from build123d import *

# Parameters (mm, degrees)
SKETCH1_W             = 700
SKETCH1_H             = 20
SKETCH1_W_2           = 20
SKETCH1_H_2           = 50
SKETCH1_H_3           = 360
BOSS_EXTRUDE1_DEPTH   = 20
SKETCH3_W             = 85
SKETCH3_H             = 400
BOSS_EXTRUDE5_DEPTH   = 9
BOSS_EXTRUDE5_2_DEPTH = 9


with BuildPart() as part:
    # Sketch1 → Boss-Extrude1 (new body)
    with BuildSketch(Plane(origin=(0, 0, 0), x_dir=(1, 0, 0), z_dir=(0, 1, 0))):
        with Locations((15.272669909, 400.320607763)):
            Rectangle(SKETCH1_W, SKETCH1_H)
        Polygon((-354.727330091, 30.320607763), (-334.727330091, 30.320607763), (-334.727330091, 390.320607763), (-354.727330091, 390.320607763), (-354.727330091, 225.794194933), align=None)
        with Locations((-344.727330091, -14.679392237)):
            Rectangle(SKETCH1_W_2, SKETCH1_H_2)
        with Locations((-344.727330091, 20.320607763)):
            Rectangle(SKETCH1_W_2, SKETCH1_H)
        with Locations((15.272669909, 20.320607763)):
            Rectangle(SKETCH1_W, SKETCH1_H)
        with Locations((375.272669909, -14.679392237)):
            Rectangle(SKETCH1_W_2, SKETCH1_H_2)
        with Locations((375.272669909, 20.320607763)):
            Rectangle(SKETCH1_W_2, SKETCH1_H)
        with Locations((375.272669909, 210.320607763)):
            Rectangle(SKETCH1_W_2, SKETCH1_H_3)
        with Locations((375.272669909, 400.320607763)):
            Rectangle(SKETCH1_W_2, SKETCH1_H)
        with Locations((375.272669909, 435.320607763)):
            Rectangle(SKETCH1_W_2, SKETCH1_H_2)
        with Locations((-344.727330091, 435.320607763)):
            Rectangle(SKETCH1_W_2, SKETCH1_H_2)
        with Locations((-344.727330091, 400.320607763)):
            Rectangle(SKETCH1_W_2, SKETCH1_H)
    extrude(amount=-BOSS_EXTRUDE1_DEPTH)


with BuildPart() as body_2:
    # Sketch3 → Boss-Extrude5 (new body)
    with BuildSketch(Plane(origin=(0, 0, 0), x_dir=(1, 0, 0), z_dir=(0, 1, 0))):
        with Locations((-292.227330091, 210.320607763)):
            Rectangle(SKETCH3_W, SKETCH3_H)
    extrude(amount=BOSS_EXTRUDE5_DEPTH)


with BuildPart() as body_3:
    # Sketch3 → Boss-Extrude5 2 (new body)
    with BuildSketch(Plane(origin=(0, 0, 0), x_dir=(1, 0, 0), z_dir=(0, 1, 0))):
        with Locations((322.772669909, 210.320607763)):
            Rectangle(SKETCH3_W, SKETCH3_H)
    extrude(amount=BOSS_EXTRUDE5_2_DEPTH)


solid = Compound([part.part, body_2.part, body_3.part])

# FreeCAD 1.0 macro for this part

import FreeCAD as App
import Part
import Sketcher
Q = App.Units.Quantity


def add_polygon(sketch, points):
    """Adds a closed chain of lines whose ends are joined by coincident constraints."""
    first, n = sketch.GeometryCount, len(points)
    for a, b in zip(points, points[1:] + points[:1]):
        sketch.addGeometry(Part.LineSegment(App.Vector(*a, 0), App.Vector(*b, 0)), False)
    for i in range(n):
        sketch.addConstraint(Sketcher.Constraint("Coincident", first + i, 2, first + (i + 1) % n, 1))

doc = App.newDocument("Part")
body = doc.addObject("PartDesign::Body", "Body")

# Sketch on XZ plane
sketch1 = doc.addObject("Sketcher::SketchObject", "Sketch")
body.addObject(sketch1)
sketch1.AttachmentSupport = (doc.XZ_Plane, [""])
sketch1.MapMode = "FlatFace"
add_polygon(sketch1, [(365.27267, -410.320608), (-334.72733, -410.320608), (-334.72733, -460.320608), (-354.72733, -460.320608), (-354.72733, 39.679392), (-334.72733, 39.679392), (-334.72733, -10.320608), (365.27267, -10.320608), (365.27267, 39.679392), (385.27267, 39.679392), (385.27267, -460.320608), (365.27267, -460.320608)])  # lines 0-11
add_polygon(sketch1, [(-334.72733, -30.320608), (-334.72733, -390.320608), (365.27267, -390.320608), (365.27267, -30.320608)])  # lines 12-15
sketch1.addConstraint([
    Sketcher.Constraint("Horizontal", 0),
    Sketcher.Constraint("Vertical", 1),
    Sketcher.Constraint("Horizontal", 2),
    Sketcher.Constraint("Vertical", 3),
    Sketcher.Constraint("Horizontal", 4),
    Sketcher.Constraint("Vertical", 5),
    Sketcher.Constraint("Horizontal", 6),
    Sketcher.Constraint("Vertical", 7),
    Sketcher.Constraint("Horizontal", 8),
    Sketcher.Constraint("Vertical", 9),
    Sketcher.Constraint("Horizontal", 10),
    Sketcher.Constraint("Vertical", 11),
    Sketcher.Constraint("Vertical", 12),
    Sketcher.Constraint("Horizontal", 13),
    Sketcher.Constraint("Vertical", 14),
    Sketcher.Constraint("Horizontal", 15),
    Sketcher.Constraint("Horizontal", 4, 2, 7, 2),
    Sketcher.Constraint("Horizontal", 2, 2, 9, 2),
    Sketcher.Constraint("Vertical", 1, 2, 4, 2),
    Sketcher.Constraint("Vertical", 7, 2, 10, 2),
    Sketcher.Constraint("Vertical", 5, 2, 12, 2),
    Sketcher.Constraint("Vertical", 11, 2, 13, 2),
    Sketcher.Constraint("Equal", 4, 8),
    Sketcher.Constraint("Equal", 1, 5),
    Sketcher.Constraint("DistanceX", 0, 2, 0, 1, Q("700 mm")),
    Sketcher.Constraint("DistanceX", 2, 2, 2, 1, Q("20 mm")),
    Sketcher.Constraint("DistanceY", 1, 2, 1, 1, Q("50 mm")),
    Sketcher.Constraint("DistanceY", 3, 1, 3, 2, Q("500 mm")),
    Sketcher.Constraint("DistanceY", 12, 2, 12, 1, Q("360 mm")),
    Sketcher.Constraint("DistanceY", 0, 2, 12, 2, Q("20 mm")),
    Sketcher.Constraint("DistanceX", 0, 2, -1, 1, Q("334.72733 mm")),
    Sketcher.Constraint("DistanceY", 0, 2, -1, 1, Q("410.320608 mm")),
])
pad1 = doc.addObject("PartDesign::Pad", "Pad")
body.addObject(pad1)
pad1.Profile = sketch1
pad1.Length = 20
body2 = doc.addObject("PartDesign::Body", "Body001")

# Sketch on XZ plane
sketch2 = doc.addObject("Sketcher::SketchObject", "Sketch001")
body2.addObject(sketch2)
sketch2.AttachmentSupport = (doc.getObject("XZ_Plane001"), [""])
sketch2.MapMode = "FlatFace"
add_polygon(sketch2, [(-334.72733, -410.320608), (-334.72733, -10.320608), (-249.72733, -10.320608), (-249.72733, -410.320608)])  # lines 0-3
sketch2.addConstraint([
    Sketcher.Constraint("Vertical", 0),
    Sketcher.Constraint("Horizontal", 1),
    Sketcher.Constraint("Vertical", 2),
    Sketcher.Constraint("Horizontal", 3),
    Sketcher.Constraint("DistanceX", 1, 1, 1, 2, Q("85 mm")),
    Sketcher.Constraint("DistanceY", 0, 1, 0, 2, Q("400 mm")),
    Sketcher.Constraint("DistanceX", 0, 2, -1, 1, Q("334.72733 mm")),
    Sketcher.Constraint("DistanceY", 0, 2, -1, 1, Q("10.320608 mm")),
])
pad2 = doc.addObject("PartDesign::Pad", "Pad001")
body2.addObject(pad2)
pad2.Profile = sketch2
pad2.Length = 9
pad2.Reversed = True
body3 = doc.addObject("PartDesign::Body", "Body002")

# Sketch on XZ plane
sketch3 = doc.addObject("Sketcher::SketchObject", "Sketch002")
body3.addObject(sketch3)
sketch3.AttachmentSupport = (doc.getObject("XZ_Plane002"), [""])
sketch3.MapMode = "FlatFace"
add_polygon(sketch3, [(280.27267, -410.320608), (280.27267, -10.320608), (365.27267, -10.320608), (365.27267, -410.320608)])  # lines 0-3
sketch3.addConstraint([
    Sketcher.Constraint("Vertical", 0),
    Sketcher.Constraint("Horizontal", 1),
    Sketcher.Constraint("Vertical", 2),
    Sketcher.Constraint("Horizontal", 3),
    Sketcher.Constraint("DistanceX", 1, 1, 1, 2, Q("85 mm")),
    Sketcher.Constraint("DistanceY", 0, 1, 0, 2, Q("400 mm")),
    Sketcher.Constraint("DistanceX", -1, 1, 0, 2, Q("280.27267 mm")),
    Sketcher.Constraint("DistanceY", 0, 2, -1, 1, Q("10.320608 mm")),
])
pad3 = doc.addObject("PartDesign::Pad", "Pad002")
body3.addObject(pad3)
pad3.Profile = sketch3
pad3.Length = 9
pad3.Reversed = True

doc.recompute()
